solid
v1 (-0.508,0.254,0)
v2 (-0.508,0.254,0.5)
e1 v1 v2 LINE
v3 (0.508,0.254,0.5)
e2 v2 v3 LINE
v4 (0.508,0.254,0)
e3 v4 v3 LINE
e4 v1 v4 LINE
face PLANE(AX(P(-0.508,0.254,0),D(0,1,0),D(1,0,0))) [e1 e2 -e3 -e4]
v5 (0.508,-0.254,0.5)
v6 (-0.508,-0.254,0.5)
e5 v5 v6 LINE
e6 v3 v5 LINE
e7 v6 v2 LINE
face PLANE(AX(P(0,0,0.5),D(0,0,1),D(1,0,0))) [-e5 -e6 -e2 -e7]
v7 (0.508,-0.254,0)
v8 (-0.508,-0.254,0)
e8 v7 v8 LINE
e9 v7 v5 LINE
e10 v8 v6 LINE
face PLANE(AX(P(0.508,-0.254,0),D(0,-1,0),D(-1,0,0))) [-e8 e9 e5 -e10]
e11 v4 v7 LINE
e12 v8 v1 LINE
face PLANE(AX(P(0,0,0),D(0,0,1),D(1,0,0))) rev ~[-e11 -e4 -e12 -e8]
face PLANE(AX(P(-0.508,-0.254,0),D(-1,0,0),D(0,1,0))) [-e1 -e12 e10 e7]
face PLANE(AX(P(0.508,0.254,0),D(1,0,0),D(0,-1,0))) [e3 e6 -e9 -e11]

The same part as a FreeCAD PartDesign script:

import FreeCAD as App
import Part
import Sketcher

V = App.Vector
Q = App.Units.Quantity


def add_polygon(sketch, points):
    """Adds a closed chain of lines whose ends are joined by coincident constraints."""
    first, n = sketch.GeometryCount, len(points)
    for a, b in zip(points, points[1:] + points[:1]):
        sketch.addGeometry(Part.LineSegment(App.Vector(*a, 0), App.Vector(*b, 0)), False)
    for i in range(n):
        sketch.addConstraint(Sketcher.Constraint("Coincident", first + i, 2, first + (i + 1) % n, 1))

doc = App.newDocument("Part")
params = doc.addObject("Spreadsheet::Sheet", "Params")
for row, (alias, value) in enumerate([
    ("sketch1_width", "0.04 in"),
    ("sketch1_height", "0.02 in"),
    ("pad1_length", "0.5 mm"),
], start=1):
    params.set(f"A{row}", alias)
    params.set(f"B{row}", "=" + value)
    params.setAlias(f"B{row}", alias)

body = doc.addObject("PartDesign::Body", "Body")

sketch1 = body.newObject("Sketcher::SketchObject", "Sketch")
sketch1.AttachmentSupport = (doc.getObject("XY_Plane"), [""])
sketch1.MapMode = "FlatFace"
add_polygon(sketch1, [(0.5, 0.3), (-0.5, 0.3), (-0.5, -0.3), (0.5, -0.3)])
sketch1.addConstraint(Sketcher.Constraint("Horizontal", 0))
sketch1.addConstraint(Sketcher.Constraint("Vertical", 1))
sketch1.addConstraint(Sketcher.Constraint("Horizontal", 2))
sketch1.addConstraint(Sketcher.Constraint("Vertical", 3))
sketch1.addConstraint(Sketcher.Constraint("Symmetric", 0, 2, 2, 2, -1, 1))
sketch1.addConstraint(Sketcher.Constraint("DistanceX", 0, 2, 0, 1, Q("0.04 in")))
sketch1.addConstraint(Sketcher.Constraint("DistanceY", 1, 2, 1, 1, Q("0.02 in")))
sketch1.setExpression("Constraints[9]", "Params.sketch1_width")
sketch1.setExpression("Constraints[10]", "Params.sketch1_height")
pad1 = body.newObject("PartDesign::Pad", "Pad")
pad1.Profile = sketch1
pad1.setExpression("Length", "Params.pad1_length")

doc.recompute()
